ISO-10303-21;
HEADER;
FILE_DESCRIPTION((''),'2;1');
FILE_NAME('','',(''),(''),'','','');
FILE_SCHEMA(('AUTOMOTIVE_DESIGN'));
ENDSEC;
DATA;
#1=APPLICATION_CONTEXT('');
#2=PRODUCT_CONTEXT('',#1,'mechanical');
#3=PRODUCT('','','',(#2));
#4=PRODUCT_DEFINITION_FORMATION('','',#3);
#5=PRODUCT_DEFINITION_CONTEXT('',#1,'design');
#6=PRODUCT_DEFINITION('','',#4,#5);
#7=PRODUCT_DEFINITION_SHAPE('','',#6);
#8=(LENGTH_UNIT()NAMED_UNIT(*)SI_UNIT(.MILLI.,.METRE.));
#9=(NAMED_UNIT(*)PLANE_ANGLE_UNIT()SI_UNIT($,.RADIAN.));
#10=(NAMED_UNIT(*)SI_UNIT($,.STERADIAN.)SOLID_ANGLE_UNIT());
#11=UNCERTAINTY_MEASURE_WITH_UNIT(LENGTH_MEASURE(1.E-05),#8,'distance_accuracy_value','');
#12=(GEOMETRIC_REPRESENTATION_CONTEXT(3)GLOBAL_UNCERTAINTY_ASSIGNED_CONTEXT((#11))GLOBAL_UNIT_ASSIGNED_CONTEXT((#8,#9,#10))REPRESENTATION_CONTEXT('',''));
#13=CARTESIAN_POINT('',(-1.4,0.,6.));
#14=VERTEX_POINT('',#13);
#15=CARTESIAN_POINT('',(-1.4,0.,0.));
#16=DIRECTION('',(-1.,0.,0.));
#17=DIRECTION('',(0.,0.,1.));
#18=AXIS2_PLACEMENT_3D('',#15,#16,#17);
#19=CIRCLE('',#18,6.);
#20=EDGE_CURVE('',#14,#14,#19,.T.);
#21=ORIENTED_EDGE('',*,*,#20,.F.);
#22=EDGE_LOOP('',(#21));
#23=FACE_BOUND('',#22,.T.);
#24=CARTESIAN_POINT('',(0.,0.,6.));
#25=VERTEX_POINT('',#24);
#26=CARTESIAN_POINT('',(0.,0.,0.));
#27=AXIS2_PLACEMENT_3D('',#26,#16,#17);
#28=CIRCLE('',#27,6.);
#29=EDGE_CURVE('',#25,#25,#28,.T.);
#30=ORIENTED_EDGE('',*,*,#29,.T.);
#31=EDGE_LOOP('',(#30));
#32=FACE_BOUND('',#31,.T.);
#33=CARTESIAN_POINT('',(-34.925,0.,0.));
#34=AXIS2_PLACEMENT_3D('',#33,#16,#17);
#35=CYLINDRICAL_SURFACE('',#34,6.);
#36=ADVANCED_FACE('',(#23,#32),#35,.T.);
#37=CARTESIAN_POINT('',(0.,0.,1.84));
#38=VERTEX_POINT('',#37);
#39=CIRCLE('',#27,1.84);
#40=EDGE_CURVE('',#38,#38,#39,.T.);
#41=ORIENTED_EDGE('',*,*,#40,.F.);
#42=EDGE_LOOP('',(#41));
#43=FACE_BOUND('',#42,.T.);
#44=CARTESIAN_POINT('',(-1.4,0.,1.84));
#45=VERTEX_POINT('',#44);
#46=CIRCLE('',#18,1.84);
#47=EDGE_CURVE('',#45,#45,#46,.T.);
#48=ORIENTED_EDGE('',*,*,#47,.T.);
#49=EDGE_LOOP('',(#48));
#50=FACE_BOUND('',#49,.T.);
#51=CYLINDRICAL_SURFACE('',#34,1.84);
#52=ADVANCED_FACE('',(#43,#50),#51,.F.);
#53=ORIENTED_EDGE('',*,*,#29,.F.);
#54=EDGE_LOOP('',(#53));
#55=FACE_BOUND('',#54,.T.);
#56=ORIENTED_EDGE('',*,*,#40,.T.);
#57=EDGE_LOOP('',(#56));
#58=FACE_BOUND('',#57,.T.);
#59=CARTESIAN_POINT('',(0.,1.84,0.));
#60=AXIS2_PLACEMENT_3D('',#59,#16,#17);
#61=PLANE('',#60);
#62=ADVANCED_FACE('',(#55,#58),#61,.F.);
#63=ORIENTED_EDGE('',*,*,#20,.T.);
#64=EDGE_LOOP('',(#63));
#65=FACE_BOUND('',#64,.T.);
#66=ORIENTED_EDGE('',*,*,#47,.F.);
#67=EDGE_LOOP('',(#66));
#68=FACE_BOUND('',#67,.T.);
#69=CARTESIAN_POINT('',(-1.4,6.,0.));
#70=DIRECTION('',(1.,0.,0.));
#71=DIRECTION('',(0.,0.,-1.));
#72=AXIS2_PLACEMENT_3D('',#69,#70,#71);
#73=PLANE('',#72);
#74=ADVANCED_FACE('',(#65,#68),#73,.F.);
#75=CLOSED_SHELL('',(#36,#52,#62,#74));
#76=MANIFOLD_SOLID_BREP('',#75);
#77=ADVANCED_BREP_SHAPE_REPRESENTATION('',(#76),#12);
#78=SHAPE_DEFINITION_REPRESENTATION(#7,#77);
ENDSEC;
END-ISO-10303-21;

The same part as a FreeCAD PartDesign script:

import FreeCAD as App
import Part
import Sketcher
from FreeCAD import Vector
Q = App.Units.Quantity

doc = App.newDocument("Part")
body = doc.addObject("PartDesign::Body", "Body")

# Sketch on XY plane
sketch1 = body.newObject("Sketcher::SketchObject", "Sketch")
sketch1.AttachmentSupport = (doc.getObject("XY_Plane"), [""])
sketch1.MapMode = "FlatFace"
sketch1.addGeometry([
    Part.LineSegment(Vector(-1.4, 6, 0), Vector(-1.4, 1.84, 0)),
    Part.LineSegment(Vector(-1.4, 1.84, 0), Vector(0, 1.84, 0)),
    Part.LineSegment(Vector(0, 1.84, 0), Vector(0, 6, 0)),
    Part.LineSegment(Vector(0, 6, 0), Vector(-1.4, 6, 0)),
], False)
sketch1.addConstraint([
    Sketcher.Constraint("Coincident", 0, 2, 1, 1),
    Sketcher.Constraint("Coincident", 1, 2, 2, 1),
    Sketcher.Constraint("Coincident", 2, 2, 3, 1),
    Sketcher.Constraint("Coincident", 3, 2, 0, 1),
    Sketcher.Constraint("Vertical", 0),
    Sketcher.Constraint("Horizontal", 1),
    Sketcher.Constraint("Vertical", 2),
    Sketcher.Constraint("Horizontal", 3),
    Sketcher.Constraint("PointOnObject", 1, 2, -2),
    Sketcher.Constraint("DistanceX", 1, 1, 1, 2, Q("1.4 mm")),
    Sketcher.Constraint("DistanceY", -1, 1, 2, 2, Q("6 mm")),
    Sketcher.Constraint("DistanceY", 0, 2, 0, 1, Q("4.16 mm")),
])
revolution = body.newObject("PartDesign::Revolution", "Revolution")
revolution.Profile = sketch1
revolution.ReferenceAxis = (sketch1, ["H_Axis"])
revolution.Angle = 360

doc.recompute()
